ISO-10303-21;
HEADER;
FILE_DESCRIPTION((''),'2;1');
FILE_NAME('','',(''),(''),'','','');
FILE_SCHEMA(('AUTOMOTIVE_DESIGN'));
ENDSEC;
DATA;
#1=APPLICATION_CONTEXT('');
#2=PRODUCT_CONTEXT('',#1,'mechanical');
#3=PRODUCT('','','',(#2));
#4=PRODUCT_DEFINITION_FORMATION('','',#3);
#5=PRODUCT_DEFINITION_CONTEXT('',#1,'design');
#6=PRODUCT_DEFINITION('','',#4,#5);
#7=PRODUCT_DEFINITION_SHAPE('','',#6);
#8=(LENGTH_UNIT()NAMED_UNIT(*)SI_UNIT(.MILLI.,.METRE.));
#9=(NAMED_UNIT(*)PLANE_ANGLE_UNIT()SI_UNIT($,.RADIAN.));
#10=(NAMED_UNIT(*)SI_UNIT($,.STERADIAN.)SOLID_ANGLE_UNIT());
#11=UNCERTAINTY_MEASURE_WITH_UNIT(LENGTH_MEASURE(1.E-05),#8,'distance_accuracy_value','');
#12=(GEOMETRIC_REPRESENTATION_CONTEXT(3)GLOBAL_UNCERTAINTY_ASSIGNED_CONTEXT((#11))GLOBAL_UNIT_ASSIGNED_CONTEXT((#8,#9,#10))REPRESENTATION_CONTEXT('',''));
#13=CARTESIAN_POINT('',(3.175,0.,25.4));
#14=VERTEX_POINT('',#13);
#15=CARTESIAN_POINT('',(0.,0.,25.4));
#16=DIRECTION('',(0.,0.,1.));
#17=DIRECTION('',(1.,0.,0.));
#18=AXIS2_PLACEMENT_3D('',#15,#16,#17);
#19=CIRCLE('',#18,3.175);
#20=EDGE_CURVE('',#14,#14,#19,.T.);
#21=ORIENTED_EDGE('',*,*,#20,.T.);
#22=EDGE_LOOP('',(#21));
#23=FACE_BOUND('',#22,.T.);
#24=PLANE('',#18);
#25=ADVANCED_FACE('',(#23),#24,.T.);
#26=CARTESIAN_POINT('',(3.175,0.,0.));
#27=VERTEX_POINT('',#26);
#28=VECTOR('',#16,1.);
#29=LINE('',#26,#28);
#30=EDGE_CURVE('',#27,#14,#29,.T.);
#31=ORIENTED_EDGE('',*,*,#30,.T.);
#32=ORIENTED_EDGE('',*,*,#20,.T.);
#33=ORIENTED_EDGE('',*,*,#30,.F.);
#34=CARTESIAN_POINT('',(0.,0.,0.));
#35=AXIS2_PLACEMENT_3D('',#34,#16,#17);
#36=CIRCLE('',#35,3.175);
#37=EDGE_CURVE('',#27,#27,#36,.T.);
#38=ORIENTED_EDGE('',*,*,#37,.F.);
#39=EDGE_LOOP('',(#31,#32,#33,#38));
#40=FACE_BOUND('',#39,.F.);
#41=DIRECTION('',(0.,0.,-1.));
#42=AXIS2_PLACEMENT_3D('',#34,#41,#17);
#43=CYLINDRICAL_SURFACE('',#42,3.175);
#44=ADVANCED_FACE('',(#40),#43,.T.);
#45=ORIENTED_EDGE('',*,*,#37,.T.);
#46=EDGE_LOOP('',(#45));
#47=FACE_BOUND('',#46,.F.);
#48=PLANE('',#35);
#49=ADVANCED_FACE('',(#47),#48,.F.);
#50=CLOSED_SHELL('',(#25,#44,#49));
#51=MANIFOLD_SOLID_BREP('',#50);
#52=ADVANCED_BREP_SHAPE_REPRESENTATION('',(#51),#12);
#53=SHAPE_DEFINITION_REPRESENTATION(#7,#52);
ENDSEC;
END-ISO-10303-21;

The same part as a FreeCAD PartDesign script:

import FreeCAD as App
import Part
import Sketcher
Q = App.Units.Quantity

doc = App.newDocument("Part")
body = doc.addObject("PartDesign::Body", "Body")

# Sketch on XY plane
sketch1 = body.newObject("Sketcher::SketchObject", "Sketch")
sketch1.AttachmentSupport = (doc.getObject("XY_Plane"), [""])
sketch1.MapMode = "FlatFace"
sketch1.addGeometry(Part.Circle(App.Vector(0, 0, 0), App.Vector(0, 0, 1), 3.2), False)
sketch1.addConstraint(Sketcher.Constraint("Coincident", 0, 3, -1, 1))
sketch1.addConstraint(Sketcher.Constraint("Diameter", 0, Q("0.25 in")))
pad1 = body.newObject("PartDesign::Pad", "Pad")
pad1.Profile = sketch1
pad1.Length = Q("1 in")

doc.recompute()
